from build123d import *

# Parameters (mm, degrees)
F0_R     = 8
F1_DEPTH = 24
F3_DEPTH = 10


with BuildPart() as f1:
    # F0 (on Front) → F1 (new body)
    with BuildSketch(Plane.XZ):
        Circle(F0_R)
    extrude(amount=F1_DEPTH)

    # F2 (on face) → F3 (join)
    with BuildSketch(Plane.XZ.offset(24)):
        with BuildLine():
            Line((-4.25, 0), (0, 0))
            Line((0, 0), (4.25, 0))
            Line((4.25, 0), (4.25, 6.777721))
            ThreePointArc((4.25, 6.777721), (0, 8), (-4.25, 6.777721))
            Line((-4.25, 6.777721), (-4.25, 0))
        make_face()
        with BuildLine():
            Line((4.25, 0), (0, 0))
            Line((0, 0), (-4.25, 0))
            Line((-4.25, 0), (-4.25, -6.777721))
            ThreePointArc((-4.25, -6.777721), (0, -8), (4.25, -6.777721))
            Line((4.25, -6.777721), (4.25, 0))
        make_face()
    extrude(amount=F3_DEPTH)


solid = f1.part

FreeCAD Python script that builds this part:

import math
import FreeCAD as App
import Part
import Sketcher
from FreeCAD import Vector

doc = App.newDocument("Part")
body = doc.addObject("PartDesign::Body", "Body")

# Sketch on XZ plane
sketch1 = body.newObject("Sketcher::SketchObject", "Sketch")
sketch1.AttachmentSupport = (doc.getObject("XZ_Plane"), [""])
sketch1.MapMode = "FlatFace"
sketch1.addGeometry(Part.Circle(Vector(0, 0, 0), Vector(0, 0, 1), 8), False)
sketch1.addConstraint(Sketcher.Constraint("Coincident", 0, 3, -1, 1))
sketch1.addConstraint(Sketcher.Constraint("Diameter", 0, 16.0))
pad1 = body.newObject("PartDesign::Pad", "Pad")
pad1.Profile = sketch1
pad1.Length = 24

# Sketch on XZ plane
sketch2 = body.newObject("Sketcher::SketchObject", "Sketch001")
sketch2.AttachmentSupport = (doc.getObject("XZ_Plane"), [""])
sketch2.MapMode = "FlatFace"
sketch2.AttachmentOffset = App.Placement(Vector(0, 0, 24), App.Rotation())
sketch2.addGeometry(Part.ArcOfCircle(Part.Circle(Vector(0, 0, 0), Vector(0, 0, 1), 8), math.radians(58), math.radians(122)), False)
sketch2.addGeometry(Part.LineSegment(Vector(-4, 7, 0), Vector(-4, -7, 0)), False)
sketch2.addGeometry(Part.ArcOfCircle(Part.Circle(Vector(0, 0, 0), Vector(0, 0, 1), 8), math.radians(-122), math.radians(-58)), False)
sketch2.addGeometry(Part.LineSegment(Vector(4, -7, 0), Vector(4, 7, 0)), False)
sketch2.addConstraint(Sketcher.Constraint("Coincident", 0, 2, 1, 1))
sketch2.addConstraint(Sketcher.Constraint("Coincident", 1, 2, 2, 1))
sketch2.addConstraint(Sketcher.Constraint("Coincident", 2, 2, 3, 1))
sketch2.addConstraint(Sketcher.Constraint("Coincident", 3, 2, 0, 1))
sketch2.addConstraint(Sketcher.Constraint("Vertical", 1))
sketch2.addConstraint(Sketcher.Constraint("Vertical", 3))
sketch2.addConstraint(Sketcher.Constraint("Coincident", 0, 3, -1, 1))
sketch2.addConstraint(Sketcher.Constraint("Coincident", 2, 3, -1, 1))
sketch2.addConstraint(Sketcher.Constraint("Equal", 0, 2))
sketch2.addConstraint(Sketcher.Constraint("Horizontal", 1, 2, 2, 2))
sketch2.addConstraint(Sketcher.Constraint("Radius", 0, 8.000001))
sketch2.addConstraint(Sketcher.Constraint("DistanceX", 1, 2, 2, 2, 8.5))
pad2 = body.newObject("PartDesign::Pad", "Pad001")
pad2.Profile = sketch2
pad2.Length = 10

doc.recompute()
